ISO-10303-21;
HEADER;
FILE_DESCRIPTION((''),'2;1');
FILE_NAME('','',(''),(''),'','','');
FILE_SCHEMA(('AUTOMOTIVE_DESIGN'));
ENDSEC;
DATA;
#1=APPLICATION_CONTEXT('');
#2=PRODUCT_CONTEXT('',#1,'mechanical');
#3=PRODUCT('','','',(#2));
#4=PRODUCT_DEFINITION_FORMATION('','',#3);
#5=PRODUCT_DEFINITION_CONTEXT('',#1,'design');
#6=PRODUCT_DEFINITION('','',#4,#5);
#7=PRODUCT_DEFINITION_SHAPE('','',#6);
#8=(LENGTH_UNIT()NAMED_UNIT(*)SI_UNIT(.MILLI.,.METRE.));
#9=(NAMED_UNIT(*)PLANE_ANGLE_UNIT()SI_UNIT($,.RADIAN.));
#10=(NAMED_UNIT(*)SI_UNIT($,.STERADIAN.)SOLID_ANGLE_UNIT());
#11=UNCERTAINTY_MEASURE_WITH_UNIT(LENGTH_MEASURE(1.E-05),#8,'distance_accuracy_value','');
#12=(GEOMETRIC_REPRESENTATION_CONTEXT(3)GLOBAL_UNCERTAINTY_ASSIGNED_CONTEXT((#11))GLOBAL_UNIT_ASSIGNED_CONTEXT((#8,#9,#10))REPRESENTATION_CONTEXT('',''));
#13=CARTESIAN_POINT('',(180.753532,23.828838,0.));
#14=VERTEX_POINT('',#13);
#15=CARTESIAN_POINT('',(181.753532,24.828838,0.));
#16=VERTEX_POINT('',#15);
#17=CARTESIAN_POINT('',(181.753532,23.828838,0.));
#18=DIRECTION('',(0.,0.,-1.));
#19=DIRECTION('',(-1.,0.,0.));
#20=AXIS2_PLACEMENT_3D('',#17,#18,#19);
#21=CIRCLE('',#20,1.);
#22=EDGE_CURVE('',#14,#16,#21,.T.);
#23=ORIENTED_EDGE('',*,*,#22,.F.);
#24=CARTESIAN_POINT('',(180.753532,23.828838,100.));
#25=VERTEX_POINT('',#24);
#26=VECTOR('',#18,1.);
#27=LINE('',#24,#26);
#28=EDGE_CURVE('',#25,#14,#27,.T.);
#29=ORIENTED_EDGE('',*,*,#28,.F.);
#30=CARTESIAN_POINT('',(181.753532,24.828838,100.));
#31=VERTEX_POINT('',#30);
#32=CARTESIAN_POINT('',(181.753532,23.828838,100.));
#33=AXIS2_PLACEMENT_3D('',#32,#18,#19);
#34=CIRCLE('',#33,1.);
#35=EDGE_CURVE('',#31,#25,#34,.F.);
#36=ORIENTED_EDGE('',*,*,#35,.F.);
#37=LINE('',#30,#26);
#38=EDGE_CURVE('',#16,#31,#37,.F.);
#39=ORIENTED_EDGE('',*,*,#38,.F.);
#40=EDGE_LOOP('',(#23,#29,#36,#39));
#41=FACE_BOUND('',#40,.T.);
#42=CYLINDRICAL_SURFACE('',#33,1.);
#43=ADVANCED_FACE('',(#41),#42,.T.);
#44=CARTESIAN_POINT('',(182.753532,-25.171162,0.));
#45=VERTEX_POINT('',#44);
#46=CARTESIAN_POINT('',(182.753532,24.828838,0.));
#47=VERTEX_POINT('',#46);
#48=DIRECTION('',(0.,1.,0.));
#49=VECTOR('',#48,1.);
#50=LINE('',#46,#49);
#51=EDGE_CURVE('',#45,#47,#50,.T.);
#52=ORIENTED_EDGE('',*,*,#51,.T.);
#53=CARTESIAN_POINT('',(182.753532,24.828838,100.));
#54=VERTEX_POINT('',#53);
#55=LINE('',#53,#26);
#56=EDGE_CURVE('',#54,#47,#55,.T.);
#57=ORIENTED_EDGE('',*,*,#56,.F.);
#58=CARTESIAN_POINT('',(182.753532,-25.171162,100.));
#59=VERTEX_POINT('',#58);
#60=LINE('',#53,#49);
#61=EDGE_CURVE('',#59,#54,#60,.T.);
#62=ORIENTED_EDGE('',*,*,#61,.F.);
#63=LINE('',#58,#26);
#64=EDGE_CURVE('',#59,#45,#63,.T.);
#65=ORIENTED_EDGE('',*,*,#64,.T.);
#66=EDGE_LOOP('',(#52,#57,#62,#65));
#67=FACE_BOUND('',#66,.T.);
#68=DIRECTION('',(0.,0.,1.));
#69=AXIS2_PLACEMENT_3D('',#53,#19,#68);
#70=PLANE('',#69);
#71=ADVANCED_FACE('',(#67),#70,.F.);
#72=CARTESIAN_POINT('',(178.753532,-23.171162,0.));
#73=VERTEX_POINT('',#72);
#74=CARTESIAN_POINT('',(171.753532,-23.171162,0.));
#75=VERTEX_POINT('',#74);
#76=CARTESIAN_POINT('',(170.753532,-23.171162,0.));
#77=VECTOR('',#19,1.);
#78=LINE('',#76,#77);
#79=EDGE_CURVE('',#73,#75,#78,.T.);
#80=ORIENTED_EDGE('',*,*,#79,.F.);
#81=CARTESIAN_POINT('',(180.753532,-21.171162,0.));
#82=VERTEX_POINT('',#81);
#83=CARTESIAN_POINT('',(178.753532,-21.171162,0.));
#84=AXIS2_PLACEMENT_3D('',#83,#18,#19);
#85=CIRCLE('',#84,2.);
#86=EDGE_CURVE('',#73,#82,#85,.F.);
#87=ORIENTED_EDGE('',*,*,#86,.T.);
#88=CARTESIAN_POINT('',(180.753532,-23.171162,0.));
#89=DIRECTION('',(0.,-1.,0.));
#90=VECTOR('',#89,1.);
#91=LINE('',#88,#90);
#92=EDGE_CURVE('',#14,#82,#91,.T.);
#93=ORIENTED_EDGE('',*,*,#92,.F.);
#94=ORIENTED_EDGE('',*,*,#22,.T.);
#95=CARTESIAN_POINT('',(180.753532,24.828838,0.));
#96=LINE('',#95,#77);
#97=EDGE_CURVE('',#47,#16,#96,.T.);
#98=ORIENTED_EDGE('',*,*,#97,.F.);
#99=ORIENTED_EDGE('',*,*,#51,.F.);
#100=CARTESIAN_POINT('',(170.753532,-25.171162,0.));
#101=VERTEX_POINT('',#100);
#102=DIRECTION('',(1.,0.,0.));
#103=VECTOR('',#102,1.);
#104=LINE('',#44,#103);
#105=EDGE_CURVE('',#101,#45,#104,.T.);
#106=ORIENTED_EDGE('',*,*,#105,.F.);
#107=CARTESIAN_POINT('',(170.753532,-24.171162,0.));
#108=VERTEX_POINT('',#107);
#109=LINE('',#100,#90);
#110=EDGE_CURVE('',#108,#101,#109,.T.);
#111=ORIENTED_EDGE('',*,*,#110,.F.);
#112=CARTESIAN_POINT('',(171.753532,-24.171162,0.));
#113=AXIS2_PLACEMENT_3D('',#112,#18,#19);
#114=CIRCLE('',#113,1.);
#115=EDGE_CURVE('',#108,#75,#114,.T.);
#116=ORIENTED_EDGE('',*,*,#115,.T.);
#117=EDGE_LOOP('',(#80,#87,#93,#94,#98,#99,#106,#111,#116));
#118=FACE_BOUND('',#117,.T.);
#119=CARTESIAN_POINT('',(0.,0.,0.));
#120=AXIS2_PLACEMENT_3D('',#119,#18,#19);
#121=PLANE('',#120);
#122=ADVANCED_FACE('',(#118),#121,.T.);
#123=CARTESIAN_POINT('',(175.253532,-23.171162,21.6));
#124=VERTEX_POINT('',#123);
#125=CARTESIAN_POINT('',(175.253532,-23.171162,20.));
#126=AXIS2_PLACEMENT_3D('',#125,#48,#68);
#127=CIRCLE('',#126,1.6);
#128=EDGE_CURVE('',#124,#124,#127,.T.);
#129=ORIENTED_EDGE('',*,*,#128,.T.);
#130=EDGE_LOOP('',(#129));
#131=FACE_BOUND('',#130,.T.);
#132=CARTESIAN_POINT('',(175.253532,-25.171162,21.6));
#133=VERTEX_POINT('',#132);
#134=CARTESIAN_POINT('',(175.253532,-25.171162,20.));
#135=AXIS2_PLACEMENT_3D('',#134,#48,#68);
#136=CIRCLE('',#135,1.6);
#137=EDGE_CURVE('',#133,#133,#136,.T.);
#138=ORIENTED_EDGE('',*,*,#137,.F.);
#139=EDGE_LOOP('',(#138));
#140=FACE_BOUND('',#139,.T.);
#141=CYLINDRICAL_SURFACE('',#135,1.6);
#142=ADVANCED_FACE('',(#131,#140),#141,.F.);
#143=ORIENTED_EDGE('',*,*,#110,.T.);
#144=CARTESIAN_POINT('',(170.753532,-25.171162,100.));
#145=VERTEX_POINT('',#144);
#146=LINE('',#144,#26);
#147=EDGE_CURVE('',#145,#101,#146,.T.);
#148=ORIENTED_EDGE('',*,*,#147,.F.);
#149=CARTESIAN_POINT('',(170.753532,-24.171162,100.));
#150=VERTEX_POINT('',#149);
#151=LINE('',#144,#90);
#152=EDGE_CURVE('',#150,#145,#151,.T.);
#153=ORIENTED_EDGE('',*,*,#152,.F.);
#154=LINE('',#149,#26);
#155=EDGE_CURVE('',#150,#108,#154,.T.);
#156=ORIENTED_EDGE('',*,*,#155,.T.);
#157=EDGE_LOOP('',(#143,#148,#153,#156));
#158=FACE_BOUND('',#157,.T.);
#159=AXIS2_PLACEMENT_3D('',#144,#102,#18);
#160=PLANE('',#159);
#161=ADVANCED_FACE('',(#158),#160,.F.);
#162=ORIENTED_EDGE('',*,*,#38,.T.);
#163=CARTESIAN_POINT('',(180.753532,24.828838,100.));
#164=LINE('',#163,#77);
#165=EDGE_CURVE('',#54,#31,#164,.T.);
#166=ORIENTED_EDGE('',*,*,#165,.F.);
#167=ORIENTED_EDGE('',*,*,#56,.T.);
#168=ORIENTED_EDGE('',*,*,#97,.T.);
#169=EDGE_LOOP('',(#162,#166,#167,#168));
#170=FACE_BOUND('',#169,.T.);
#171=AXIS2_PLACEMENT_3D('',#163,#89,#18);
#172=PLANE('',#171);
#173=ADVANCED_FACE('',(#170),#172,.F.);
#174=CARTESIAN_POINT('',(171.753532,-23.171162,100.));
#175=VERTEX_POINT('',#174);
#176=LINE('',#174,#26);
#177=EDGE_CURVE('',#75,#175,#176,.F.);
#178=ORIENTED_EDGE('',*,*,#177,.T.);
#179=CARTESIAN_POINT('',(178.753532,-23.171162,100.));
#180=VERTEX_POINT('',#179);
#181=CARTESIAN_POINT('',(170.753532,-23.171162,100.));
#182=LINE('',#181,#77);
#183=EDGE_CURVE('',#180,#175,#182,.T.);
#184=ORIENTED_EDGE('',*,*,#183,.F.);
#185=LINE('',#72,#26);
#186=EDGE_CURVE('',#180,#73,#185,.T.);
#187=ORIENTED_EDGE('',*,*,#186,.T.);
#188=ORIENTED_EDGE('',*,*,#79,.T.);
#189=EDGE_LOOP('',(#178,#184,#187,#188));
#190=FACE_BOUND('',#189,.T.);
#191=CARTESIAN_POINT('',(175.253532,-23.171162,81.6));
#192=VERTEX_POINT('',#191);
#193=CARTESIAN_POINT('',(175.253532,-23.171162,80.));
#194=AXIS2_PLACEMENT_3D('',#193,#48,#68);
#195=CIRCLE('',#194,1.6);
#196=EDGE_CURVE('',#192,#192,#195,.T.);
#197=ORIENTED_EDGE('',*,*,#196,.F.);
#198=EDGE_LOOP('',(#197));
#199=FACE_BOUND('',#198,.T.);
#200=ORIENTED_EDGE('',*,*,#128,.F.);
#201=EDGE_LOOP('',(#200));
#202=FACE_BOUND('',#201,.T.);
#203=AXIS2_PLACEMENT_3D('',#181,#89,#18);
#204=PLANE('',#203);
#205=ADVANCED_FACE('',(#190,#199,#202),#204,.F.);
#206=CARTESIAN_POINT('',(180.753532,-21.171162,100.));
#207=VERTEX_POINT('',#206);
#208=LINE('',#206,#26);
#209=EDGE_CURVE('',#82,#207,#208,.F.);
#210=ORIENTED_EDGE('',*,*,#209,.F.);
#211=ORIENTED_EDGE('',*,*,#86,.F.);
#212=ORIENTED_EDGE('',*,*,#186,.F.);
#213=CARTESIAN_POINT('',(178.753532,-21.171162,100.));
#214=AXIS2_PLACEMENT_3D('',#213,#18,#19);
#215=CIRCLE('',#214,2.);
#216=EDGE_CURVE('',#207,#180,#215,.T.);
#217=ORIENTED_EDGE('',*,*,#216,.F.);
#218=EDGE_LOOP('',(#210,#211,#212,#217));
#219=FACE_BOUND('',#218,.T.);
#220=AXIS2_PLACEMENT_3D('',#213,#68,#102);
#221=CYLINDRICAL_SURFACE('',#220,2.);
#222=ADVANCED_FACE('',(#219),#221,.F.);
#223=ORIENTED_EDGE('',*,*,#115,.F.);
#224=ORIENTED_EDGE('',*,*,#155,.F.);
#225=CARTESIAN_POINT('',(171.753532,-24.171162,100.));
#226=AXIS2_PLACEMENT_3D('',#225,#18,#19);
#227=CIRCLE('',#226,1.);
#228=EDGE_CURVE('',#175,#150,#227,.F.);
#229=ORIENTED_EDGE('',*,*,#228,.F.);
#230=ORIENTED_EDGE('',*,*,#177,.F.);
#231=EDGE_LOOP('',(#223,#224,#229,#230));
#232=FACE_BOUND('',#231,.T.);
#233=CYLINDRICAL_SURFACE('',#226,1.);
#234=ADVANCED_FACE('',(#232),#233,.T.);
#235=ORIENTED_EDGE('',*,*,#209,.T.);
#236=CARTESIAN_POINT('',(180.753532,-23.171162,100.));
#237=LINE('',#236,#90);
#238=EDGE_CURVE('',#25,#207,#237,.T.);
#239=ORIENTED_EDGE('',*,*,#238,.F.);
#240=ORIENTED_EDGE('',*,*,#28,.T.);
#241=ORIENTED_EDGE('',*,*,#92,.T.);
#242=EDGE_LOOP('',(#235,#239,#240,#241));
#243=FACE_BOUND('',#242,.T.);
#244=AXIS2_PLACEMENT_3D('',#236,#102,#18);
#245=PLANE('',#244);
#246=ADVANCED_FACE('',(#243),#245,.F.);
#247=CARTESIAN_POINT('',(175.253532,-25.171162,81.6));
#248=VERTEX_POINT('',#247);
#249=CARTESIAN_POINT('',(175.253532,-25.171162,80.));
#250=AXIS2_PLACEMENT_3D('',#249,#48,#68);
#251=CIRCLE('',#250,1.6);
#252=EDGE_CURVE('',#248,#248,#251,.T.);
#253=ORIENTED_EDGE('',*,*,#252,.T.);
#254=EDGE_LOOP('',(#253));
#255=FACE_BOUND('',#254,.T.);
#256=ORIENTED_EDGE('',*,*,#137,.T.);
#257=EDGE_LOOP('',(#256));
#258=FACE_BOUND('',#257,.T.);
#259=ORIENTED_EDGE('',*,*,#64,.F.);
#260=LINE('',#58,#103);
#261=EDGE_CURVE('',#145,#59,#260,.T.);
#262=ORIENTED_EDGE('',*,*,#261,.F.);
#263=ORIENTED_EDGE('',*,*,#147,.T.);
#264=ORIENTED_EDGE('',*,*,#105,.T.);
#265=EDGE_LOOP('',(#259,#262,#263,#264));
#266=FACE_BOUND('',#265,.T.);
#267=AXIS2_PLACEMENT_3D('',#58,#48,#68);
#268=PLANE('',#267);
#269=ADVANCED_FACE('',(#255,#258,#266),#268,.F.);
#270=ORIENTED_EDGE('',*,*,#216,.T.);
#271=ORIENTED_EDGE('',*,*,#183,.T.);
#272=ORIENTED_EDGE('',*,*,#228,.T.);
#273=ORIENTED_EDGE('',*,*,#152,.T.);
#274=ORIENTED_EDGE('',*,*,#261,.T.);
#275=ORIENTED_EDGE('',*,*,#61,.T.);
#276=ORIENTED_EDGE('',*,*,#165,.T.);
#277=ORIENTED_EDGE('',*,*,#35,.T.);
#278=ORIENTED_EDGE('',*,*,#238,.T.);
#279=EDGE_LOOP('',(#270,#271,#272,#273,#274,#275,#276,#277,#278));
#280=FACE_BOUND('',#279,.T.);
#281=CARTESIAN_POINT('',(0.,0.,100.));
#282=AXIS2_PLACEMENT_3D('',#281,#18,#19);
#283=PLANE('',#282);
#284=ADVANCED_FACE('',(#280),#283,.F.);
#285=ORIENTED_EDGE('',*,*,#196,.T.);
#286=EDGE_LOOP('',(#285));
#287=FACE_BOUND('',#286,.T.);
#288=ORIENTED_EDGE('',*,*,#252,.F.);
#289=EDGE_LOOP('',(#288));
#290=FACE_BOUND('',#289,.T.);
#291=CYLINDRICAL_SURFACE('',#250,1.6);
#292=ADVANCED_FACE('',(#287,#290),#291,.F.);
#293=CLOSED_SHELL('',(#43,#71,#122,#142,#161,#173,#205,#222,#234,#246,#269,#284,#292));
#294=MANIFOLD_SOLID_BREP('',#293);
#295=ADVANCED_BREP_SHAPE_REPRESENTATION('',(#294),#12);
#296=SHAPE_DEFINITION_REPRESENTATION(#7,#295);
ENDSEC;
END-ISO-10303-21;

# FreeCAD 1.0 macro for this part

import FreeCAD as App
import Part
import Sketcher

V = App.Vector
Q = App.Units.Quantity


def edges_at(feature, points):
    """Names of the edges that pass closest to the given points."""
    edges = feature.Shape.Edges
    near = lambda p: min(range(len(edges)), key=lambda i: edges[i].distToShape(Part.Vertex(*p))[0])
    return sorted({f"Edge{near(p) + 1}" for p in points})

doc = App.newDocument("Part")
body = doc.addObject("PartDesign::Body", "Body")

# Sketch on XY plane
sketch1 = body.newObject("Sketcher::SketchObject", "Sketch")
sketch1.AttachmentSupport = (doc.getObject("XY_Plane"), [""])
sketch1.MapMode = "FlatFace"
sketch1.addGeometry(Part.LineSegment(V(182.753532, -25.171162, 0), V(182.753532, 24.828838, 0)), False)
sketch1.addGeometry(Part.LineSegment(V(182.753532, 24.828838, 0), V(180.753532, 24.828838, 0)), False)
sketch1.addGeometry(Part.LineSegment(V(180.753532, 24.828838, 0), V(180.753532, -23.171162, 0)), False)
sketch1.addGeometry(Part.LineSegment(V(180.753532, -23.171162, 0), V(170.753532, -23.171162, 0)), False)
sketch1.addGeometry(Part.LineSegment(V(170.753532, -23.171162, 0), V(170.753532, -25.171162, 0)), False)
sketch1.addGeometry(Part.LineSegment(V(170.753532, -25.171162, 0), V(182.753532, -25.171162, 0)), False)
sketch1.addConstraint(Sketcher.Constraint("Coincident", 0, 2, 1, 1))
sketch1.addConstraint(Sketcher.Constraint("Coincident", 1, 2, 2, 1))
sketch1.addConstraint(Sketcher.Constraint("Coincident", 2, 2, 3, 1))
sketch1.addConstraint(Sketcher.Constraint("Coincident", 3, 2, 4, 1))
sketch1.addConstraint(Sketcher.Constraint("Coincident", 4, 2, 5, 1))
sketch1.addConstraint(Sketcher.Constraint("Coincident", 5, 2, 0, 1))
sketch1.addConstraint(Sketcher.Constraint("Vertical", 0))
sketch1.addConstraint(Sketcher.Constraint("Horizontal", 1))
sketch1.addConstraint(Sketcher.Constraint("Vertical", 2))
sketch1.addConstraint(Sketcher.Constraint("Horizontal", 3))
sketch1.addConstraint(Sketcher.Constraint("Vertical", 4))
sketch1.addConstraint(Sketcher.Constraint("Horizontal", 5))
sketch1.addConstraint(Sketcher.Constraint("Equal", 1, 4))
sketch1.addConstraint(Sketcher.Constraint("DistanceX", 1, 2, 1, 1, Q("2 mm")))
sketch1.addConstraint(Sketcher.Constraint("DistanceX", 3, 2, 3, 1, Q("10 mm")))
sketch1.addConstraint(Sketcher.Constraint("DistanceY", 0, 1, 0, 2, Q("50 mm")))
sketch1.addConstraint(Sketcher.Constraint("DistanceX", -1, 1, 0, 2, Q("182.753532 mm")))
sketch1.addConstraint(Sketcher.Constraint("DistanceY", -1, 1, 0, 2, Q("24.828838 mm")))
pad1 = body.newObject("PartDesign::Pad", "Pad")
pad1.Profile = sketch1
pad1.Length = 100
doc.recompute()

fillet = body.newObject("PartDesign::Fillet", "Fillet")
fillet.Base = (pad1, edges_at(pad1, [(170.754, -23.171, 50), (180.754, 24.829, 50)]))
fillet.Radius = 1
doc.recompute()

fillet2 = body.newObject("PartDesign::Fillet", "Fillet001")
fillet2.Base = (fillet, edges_at(fillet, [(180.754, -23.171, 50)]))
fillet2.Radius = 2

# Sketch on XZ plane
sketch2 = body.newObject("Sketcher::SketchObject", "Sketch001")
sketch2.AttachmentSupport = (doc.getObject("XZ_Plane"), [""])
sketch2.MapMode = "FlatFace"
sketch2.AttachmentOffset = App.Placement(V(0, 0, 23.171162), App.Rotation())
sketch2.addGeometry(Part.Circle(V(175.253532, 80, 0), V(0, 0, 1), 1.6), False)
sketch2.addGeometry(Part.Circle(V(175.253532, 20, 0), V(0, 0, 1), 1.6), False)
sketch2.addConstraint(Sketcher.Constraint("Equal", 0, 1))
sketch2.addConstraint(Sketcher.Constraint("Vertical", 0, 3, 1, 3))
sketch2.addConstraint(Sketcher.Constraint("Diameter", 0, Q("3.2 mm")))
sketch2.addConstraint(Sketcher.Constraint("DistanceY", -1, 1, 0, 3, Q("80 mm")))
sketch2.addConstraint(Sketcher.Constraint("DistanceY", -1, 1, 1, 3, Q("20 mm")))
sketch2.addConstraint(Sketcher.Constraint("DistanceX", -1, 1, 0, 3, Q("175.253532 mm")))
pocket1 = body.newObject("PartDesign::Pocket", "Pocket")
pocket1.Profile = sketch2
pocket1.Type = "ThroughAll"
pocket1.Reversed = True

doc.recompute()
